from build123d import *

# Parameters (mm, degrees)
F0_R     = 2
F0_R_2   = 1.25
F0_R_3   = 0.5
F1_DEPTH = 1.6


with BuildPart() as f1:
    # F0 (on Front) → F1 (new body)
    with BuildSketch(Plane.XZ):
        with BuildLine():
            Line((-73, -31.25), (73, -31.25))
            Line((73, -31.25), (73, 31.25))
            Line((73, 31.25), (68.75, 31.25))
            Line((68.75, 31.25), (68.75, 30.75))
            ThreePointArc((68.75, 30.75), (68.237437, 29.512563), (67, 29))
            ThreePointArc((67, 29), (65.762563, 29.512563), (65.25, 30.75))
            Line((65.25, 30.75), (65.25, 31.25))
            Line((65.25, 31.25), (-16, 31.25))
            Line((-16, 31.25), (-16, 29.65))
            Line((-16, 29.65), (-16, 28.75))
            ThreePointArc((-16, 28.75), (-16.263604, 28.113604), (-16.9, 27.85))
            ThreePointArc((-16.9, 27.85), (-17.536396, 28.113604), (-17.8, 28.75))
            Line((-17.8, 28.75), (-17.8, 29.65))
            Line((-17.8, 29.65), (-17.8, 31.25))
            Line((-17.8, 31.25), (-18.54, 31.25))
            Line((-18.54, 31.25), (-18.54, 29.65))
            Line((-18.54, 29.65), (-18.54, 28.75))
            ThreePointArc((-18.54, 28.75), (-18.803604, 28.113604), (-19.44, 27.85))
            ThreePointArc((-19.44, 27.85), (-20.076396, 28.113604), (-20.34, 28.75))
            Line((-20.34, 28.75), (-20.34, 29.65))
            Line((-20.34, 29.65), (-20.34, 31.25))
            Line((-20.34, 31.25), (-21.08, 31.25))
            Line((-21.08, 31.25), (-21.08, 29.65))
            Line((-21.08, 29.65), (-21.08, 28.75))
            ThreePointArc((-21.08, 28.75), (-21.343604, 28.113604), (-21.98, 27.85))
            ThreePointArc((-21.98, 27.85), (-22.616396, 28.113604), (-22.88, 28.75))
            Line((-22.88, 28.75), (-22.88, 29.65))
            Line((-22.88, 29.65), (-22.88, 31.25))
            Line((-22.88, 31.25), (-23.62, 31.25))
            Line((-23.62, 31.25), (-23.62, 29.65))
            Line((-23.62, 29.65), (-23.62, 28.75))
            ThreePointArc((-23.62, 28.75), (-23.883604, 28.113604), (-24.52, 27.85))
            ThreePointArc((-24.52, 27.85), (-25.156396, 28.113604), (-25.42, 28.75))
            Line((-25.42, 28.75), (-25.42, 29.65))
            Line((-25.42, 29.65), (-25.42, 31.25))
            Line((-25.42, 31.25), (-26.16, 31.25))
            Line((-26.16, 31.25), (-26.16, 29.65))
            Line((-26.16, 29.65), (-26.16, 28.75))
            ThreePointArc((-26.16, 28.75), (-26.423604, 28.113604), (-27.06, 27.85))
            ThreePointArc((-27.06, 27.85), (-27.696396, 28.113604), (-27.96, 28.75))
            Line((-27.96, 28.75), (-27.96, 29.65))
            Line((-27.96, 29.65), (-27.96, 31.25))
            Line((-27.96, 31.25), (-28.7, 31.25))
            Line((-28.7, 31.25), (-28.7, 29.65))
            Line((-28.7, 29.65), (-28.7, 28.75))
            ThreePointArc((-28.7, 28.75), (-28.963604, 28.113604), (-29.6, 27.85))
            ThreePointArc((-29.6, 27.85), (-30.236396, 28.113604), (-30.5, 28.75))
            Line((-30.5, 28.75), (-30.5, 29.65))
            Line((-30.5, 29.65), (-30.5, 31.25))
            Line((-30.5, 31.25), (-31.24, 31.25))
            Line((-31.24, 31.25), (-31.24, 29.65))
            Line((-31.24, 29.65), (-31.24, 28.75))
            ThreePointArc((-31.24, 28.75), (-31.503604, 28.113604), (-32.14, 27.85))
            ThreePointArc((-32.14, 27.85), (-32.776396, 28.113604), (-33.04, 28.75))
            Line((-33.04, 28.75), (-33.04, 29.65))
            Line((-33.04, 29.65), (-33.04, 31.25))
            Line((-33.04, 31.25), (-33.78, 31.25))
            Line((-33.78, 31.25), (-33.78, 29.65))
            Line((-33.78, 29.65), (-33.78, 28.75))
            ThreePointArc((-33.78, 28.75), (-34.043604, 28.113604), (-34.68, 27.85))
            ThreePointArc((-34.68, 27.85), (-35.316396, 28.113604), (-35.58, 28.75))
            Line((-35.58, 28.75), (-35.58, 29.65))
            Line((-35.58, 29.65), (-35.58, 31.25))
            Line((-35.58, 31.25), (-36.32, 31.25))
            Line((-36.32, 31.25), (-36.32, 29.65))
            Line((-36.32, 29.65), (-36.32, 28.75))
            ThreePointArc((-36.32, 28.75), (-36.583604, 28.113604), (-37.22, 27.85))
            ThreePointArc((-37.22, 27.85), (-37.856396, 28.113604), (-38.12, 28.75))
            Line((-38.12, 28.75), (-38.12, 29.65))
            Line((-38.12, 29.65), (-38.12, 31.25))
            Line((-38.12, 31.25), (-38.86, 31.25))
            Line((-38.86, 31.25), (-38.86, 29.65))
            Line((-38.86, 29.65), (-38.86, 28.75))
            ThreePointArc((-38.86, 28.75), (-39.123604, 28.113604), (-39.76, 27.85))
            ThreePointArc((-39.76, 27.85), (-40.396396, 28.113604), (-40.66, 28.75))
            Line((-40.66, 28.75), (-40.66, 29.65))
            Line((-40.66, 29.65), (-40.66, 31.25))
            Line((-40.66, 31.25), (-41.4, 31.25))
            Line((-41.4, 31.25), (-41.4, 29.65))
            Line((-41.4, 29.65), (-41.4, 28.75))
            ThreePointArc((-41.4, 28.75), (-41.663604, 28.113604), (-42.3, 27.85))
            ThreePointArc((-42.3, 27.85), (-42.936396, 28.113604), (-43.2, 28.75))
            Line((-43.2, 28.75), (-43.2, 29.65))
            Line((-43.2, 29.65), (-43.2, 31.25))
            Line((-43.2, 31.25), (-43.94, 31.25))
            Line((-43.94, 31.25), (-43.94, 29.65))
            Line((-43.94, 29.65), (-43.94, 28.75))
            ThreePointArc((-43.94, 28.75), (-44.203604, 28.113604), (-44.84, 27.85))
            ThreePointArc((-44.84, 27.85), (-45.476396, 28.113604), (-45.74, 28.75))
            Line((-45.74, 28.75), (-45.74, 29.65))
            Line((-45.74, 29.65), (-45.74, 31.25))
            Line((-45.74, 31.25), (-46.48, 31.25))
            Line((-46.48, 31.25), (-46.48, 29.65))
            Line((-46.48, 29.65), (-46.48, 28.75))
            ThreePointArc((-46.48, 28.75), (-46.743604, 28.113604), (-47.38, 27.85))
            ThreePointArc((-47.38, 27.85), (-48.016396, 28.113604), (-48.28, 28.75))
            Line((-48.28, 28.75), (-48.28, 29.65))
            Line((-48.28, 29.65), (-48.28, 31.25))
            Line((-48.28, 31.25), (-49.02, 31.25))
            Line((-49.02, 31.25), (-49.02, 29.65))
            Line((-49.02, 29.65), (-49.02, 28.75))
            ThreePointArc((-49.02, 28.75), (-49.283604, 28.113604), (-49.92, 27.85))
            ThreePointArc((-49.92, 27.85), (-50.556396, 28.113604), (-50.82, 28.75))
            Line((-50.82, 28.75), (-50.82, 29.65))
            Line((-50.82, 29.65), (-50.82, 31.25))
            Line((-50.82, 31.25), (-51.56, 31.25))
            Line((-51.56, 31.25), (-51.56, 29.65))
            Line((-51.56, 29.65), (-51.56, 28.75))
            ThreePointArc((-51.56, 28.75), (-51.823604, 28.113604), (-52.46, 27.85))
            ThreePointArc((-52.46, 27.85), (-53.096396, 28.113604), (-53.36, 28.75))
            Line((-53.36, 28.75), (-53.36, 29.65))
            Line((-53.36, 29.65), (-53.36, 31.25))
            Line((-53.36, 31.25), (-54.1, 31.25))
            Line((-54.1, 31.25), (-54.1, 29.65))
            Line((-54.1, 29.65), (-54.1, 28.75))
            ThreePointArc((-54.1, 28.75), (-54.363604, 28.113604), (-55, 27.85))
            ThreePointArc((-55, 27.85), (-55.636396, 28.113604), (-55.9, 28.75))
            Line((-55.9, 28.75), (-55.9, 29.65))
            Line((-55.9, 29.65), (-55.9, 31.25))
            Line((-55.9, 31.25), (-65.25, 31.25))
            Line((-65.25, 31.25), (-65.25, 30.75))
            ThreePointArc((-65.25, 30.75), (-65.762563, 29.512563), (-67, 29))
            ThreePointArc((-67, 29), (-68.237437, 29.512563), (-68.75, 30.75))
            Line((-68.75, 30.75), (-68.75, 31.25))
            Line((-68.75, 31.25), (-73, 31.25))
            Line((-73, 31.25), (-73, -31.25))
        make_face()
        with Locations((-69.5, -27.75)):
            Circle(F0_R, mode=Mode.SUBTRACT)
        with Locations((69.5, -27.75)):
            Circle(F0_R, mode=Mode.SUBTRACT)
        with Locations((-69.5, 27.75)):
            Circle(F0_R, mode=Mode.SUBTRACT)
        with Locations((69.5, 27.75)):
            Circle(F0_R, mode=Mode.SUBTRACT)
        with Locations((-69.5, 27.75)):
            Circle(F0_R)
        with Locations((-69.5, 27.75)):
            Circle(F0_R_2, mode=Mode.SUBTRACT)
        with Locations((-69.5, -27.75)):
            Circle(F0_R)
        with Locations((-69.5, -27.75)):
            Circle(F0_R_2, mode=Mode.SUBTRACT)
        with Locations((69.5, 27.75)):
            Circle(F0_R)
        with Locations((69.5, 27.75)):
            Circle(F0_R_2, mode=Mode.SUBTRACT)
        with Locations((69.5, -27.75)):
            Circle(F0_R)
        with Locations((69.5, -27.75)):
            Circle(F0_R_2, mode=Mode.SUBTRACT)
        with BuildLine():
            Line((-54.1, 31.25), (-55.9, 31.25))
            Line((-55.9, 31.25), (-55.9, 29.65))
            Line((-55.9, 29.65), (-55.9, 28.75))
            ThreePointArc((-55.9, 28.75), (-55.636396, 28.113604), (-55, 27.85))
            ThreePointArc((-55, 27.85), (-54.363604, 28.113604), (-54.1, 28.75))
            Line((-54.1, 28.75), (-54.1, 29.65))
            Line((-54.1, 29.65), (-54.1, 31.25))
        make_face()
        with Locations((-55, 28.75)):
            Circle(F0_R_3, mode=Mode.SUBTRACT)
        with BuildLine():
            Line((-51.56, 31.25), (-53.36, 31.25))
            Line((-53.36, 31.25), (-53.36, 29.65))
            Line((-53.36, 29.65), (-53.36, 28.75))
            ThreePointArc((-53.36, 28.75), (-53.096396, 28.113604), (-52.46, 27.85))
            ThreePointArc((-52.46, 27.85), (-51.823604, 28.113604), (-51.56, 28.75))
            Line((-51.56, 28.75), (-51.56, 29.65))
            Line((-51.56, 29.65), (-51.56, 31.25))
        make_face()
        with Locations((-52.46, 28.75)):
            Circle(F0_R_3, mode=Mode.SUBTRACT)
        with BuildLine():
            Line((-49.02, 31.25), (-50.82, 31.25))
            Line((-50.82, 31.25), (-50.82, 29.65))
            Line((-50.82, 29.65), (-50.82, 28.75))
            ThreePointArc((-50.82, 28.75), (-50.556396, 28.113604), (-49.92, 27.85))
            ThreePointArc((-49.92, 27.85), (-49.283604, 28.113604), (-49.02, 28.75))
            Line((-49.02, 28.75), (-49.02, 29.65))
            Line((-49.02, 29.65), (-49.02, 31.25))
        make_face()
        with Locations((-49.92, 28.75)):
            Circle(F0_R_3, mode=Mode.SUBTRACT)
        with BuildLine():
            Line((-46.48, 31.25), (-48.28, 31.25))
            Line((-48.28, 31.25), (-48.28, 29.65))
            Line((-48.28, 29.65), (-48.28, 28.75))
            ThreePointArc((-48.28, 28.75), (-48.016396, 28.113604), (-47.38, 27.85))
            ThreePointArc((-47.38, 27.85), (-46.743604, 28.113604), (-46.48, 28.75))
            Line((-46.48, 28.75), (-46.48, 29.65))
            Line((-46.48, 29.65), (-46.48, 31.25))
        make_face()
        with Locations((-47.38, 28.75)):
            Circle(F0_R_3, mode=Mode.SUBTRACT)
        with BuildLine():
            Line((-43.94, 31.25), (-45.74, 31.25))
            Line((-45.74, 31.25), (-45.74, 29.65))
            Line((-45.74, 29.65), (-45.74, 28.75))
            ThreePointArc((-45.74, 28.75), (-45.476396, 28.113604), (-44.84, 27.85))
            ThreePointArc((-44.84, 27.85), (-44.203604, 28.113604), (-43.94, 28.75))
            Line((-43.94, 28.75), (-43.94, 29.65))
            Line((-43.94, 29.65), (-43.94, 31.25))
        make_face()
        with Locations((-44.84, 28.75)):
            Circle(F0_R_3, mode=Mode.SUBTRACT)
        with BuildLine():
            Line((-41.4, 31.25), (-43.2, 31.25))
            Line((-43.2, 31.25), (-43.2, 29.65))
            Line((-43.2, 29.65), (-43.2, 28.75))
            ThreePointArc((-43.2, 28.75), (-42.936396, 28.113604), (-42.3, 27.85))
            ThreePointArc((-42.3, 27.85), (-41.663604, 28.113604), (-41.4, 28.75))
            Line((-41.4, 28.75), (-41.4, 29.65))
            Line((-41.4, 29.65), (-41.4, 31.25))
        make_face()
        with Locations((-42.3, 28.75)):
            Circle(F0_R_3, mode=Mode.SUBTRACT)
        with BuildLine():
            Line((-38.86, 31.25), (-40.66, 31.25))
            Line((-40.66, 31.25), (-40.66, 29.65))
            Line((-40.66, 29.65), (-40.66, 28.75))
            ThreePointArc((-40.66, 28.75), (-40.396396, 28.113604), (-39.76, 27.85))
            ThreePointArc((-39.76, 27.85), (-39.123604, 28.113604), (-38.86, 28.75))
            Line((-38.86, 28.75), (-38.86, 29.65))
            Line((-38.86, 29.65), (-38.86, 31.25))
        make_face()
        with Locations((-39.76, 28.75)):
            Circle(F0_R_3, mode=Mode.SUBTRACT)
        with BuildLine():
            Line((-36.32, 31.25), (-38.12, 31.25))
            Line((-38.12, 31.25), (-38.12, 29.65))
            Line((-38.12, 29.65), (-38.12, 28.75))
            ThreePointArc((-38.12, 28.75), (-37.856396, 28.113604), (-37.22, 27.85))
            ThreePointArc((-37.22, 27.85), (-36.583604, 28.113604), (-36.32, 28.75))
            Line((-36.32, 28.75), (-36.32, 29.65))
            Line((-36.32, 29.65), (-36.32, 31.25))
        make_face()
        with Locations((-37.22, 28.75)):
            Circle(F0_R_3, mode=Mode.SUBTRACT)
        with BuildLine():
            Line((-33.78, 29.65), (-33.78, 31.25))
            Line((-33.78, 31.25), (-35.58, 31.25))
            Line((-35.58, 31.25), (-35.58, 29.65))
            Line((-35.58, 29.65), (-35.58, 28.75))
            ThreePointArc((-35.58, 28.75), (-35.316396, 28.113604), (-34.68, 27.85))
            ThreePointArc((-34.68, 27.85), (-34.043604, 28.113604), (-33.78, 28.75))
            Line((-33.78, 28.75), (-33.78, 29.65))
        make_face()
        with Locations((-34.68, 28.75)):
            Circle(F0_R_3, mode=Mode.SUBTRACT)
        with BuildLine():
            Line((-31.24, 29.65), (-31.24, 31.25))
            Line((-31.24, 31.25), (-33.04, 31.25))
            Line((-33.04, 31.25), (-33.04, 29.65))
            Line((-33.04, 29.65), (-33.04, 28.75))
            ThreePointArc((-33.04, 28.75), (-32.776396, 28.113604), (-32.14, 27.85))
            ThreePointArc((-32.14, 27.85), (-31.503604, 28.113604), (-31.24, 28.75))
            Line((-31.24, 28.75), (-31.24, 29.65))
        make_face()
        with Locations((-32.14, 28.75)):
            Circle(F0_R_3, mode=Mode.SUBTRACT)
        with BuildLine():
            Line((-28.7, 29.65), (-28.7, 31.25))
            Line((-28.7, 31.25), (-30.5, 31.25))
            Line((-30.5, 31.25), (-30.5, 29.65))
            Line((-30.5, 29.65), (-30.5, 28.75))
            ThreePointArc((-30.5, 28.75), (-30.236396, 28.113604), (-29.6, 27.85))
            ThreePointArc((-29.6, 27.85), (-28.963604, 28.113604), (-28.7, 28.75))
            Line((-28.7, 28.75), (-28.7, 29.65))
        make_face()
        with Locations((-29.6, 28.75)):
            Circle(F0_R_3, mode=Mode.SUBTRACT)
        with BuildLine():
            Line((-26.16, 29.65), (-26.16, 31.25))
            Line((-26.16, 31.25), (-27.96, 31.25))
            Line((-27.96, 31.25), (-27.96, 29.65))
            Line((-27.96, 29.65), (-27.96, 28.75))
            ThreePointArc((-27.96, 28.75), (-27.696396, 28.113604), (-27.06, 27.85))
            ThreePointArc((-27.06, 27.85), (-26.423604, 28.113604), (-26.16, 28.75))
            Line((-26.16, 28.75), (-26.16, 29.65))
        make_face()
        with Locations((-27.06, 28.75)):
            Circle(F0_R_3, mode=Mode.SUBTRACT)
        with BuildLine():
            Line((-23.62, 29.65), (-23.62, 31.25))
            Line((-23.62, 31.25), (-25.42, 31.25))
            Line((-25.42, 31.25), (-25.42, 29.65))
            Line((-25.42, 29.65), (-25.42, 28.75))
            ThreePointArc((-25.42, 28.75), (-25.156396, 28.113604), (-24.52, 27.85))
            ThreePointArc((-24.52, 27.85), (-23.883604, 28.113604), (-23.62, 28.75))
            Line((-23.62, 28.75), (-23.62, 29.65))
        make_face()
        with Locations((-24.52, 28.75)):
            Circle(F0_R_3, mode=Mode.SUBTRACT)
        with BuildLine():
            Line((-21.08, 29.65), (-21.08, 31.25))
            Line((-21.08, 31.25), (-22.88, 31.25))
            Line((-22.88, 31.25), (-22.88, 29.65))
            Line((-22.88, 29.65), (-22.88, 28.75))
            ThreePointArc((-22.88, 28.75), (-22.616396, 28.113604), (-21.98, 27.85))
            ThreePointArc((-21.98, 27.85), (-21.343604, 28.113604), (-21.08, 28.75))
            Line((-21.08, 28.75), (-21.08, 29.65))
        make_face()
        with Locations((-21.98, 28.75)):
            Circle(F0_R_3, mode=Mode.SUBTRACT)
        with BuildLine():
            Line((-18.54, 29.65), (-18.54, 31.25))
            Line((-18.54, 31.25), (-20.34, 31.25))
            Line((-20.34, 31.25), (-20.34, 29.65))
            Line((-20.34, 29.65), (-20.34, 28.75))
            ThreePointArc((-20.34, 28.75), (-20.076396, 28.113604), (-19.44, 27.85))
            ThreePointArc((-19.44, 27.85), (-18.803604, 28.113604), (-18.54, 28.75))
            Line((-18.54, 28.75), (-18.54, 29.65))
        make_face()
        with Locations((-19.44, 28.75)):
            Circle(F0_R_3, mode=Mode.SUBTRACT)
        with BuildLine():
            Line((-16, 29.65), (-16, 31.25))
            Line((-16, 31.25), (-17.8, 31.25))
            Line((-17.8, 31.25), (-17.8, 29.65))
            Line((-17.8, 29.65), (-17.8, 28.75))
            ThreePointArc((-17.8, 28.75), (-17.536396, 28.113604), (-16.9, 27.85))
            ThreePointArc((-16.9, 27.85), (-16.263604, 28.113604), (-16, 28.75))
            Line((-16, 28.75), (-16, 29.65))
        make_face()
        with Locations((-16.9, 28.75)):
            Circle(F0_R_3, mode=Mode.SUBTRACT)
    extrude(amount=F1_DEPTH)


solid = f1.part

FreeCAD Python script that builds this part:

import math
import FreeCAD as App
import Part
import Sketcher
Q = App.Units.Quantity

doc = App.newDocument("Part")
body = doc.addObject("PartDesign::Body", "Body")

sketch1 = body.newObject("Sketcher::SketchObject", "Sketch")
sketch1.AttachmentSupport = (doc.getObject("XZ_Plane"), [""])
sketch1.MapMode = "FlatFace"
sketch1.addGeometry([
    Part.LineSegment(App.Vector(-73, -31.2, 0), App.Vector(73, -31.2, 0)),
    Part.LineSegment(App.Vector(73, -31.2, 0), App.Vector(73, 31.2, 0)),
    Part.LineSegment(App.Vector(73, 31.2, 0), App.Vector(68.8, 31.2, 0)),
    Part.LineSegment(App.Vector(68.8, 31.2, 0), App.Vector(68.8, 30.8, 0)),
    Part.ArcOfCircle(Part.Circle(App.Vector(67, 30.7, 0), App.Vector(0, 0, 1), 1.7), math.radians(-90), math.radians(0)),
    Part.ArcOfCircle(Part.Circle(App.Vector(67, 30.7, 0), App.Vector(0, 0, 1), 1.7), math.radians(180), math.radians(270)),
    Part.LineSegment(App.Vector(65.2, 30.8, 0), App.Vector(65.2, 31.2, 0)),
    Part.LineSegment(App.Vector(65.2, 31.2, 0), App.Vector(-65.2, 31.2, 0)),
    Part.LineSegment(App.Vector(-65.2, 31.2, 0), App.Vector(-65.2, 30.8, 0)),
    Part.ArcOfCircle(Part.Circle(App.Vector(-67, 30.7, 0), App.Vector(0, 0, 1), 1.7), math.radians(-90), math.radians(0)),
    Part.ArcOfCircle(Part.Circle(App.Vector(-67, 30.7, 0), App.Vector(0, 0, 1), 1.7), math.radians(180), math.radians(270)),
    Part.LineSegment(App.Vector(-68.8, 30.8, 0), App.Vector(-68.8, 31.2, 0)),
    Part.LineSegment(App.Vector(-68.8, 31.2, 0), App.Vector(-73, 31.2, 0)),
    Part.LineSegment(App.Vector(-73, 31.2, 0), App.Vector(-73, -31.2, 0)),
    Part.Circle(App.Vector(-69.5, -27.8, 0), App.Vector(0, 0, 1), 1.2),
    Part.Circle(App.Vector(69.5, -27.8, 0), App.Vector(0, 0, 1), 1.2),
    Part.Circle(App.Vector(-69.5, 27.8, 0), App.Vector(0, 0, 1), 1.2),
    Part.Circle(App.Vector(-55, 28.8, 0), App.Vector(0, 0, 1), 0.5),
    Part.Circle(App.Vector(-52.5, 28.8, 0), App.Vector(0, 0, 1), 0.5),
    Part.Circle(App.Vector(-49.9, 28.8, 0), App.Vector(0, 0, 1), 0.5),
    Part.Circle(App.Vector(-47.4, 28.8, 0), App.Vector(0, 0, 1), 0.5),
    Part.Circle(App.Vector(-44.8, 28.8, 0), App.Vector(0, 0, 1), 0.5),
    Part.Circle(App.Vector(-42.3, 28.8, 0), App.Vector(0, 0, 1), 0.5),
    Part.Circle(App.Vector(-39.8, 28.8, 0), App.Vector(0, 0, 1), 0.5),
    Part.Circle(App.Vector(-37.2, 28.8, 0), App.Vector(0, 0, 1), 0.5),
    Part.Circle(App.Vector(-34.7, 28.8, 0), App.Vector(0, 0, 1), 0.5),
    Part.Circle(App.Vector(-32.1, 28.8, 0), App.Vector(0, 0, 1), 0.5),
    Part.Circle(App.Vector(-29.6, 28.8, 0), App.Vector(0, 0, 1), 0.5),
    Part.Circle(App.Vector(-27.1, 28.8, 0), App.Vector(0, 0, 1), 0.5),
    Part.Circle(App.Vector(-24.5, 28.8, 0), App.Vector(0, 0, 1), 0.5),
    Part.Circle(App.Vector(-22, 28.8, 0), App.Vector(0, 0, 1), 0.5),
    Part.Circle(App.Vector(-19.4, 28.8, 0), App.Vector(0, 0, 1), 0.5),
    Part.Circle(App.Vector(-16.9, 28.8, 0), App.Vector(0, 0, 1), 0.5),
    Part.Circle(App.Vector(69.5, 27.8, 0), App.Vector(0, 0, 1), 1.2),
], False)
sketch1.addConstraint([
    Sketcher.Constraint("Coincident", 0, 2, 1, 1),
    Sketcher.Constraint("Coincident", 1, 2, 2, 1),
    Sketcher.Constraint("Coincident", 2, 2, 3, 1),
    Sketcher.Constraint("Tangent", 3, 2, 4, 2),
    Sketcher.Constraint("Tangent", 4, 1, 5, 2),
    Sketcher.Constraint("Tangent", 5, 1, 6, 1),
    Sketcher.Constraint("Coincident", 6, 2, 7, 1),
    Sketcher.Constraint("Coincident", 7, 2, 8, 1),
    Sketcher.Constraint("Tangent", 8, 2, 9, 2),
    Sketcher.Constraint("Tangent", 9, 1, 10, 2),
    Sketcher.Constraint("Tangent", 10, 1, 11, 1),
    Sketcher.Constraint("Coincident", 11, 2, 12, 1),
    Sketcher.Constraint("Coincident", 12, 2, 13, 1),
    Sketcher.Constraint("Coincident", 13, 2, 0, 1),
    Sketcher.Constraint("Horizontal", 0),
    Sketcher.Constraint("Vertical", 1),
    Sketcher.Constraint("Horizontal", 2),
    Sketcher.Constraint("Vertical", 3),
    Sketcher.Constraint("Vertical", 6),
    Sketcher.Constraint("Horizontal", 7),
    Sketcher.Constraint("Vertical", 8),
    Sketcher.Constraint("Vertical", 11),
    Sketcher.Constraint("Horizontal", 12),
    Sketcher.Constraint("Vertical", 13),
    Sketcher.Constraint("Equal", 4, 5),
    Sketcher.Constraint("Equal", 5, 9),
    Sketcher.Constraint("Equal", 9, 10),
    Sketcher.Constraint("Equal", 14, 15),
    Sketcher.Constraint("Equal", 15, 16),
    Sketcher.Constraint("Equal", 17, 18),
    Sketcher.Constraint("Equal", 18, 19),
    Sketcher.Constraint("Equal", 19, 20),
    Sketcher.Constraint("Equal", 20, 21),
    Sketcher.Constraint("Equal", 21, 22),
    Sketcher.Constraint("Equal", 22, 23),
    Sketcher.Constraint("Equal", 23, 24),
    Sketcher.Constraint("Equal", 24, 25),
    Sketcher.Constraint("Equal", 25, 26),
    Sketcher.Constraint("Equal", 26, 27),
    Sketcher.Constraint("Equal", 27, 28),
    Sketcher.Constraint("Equal", 28, 29),
    Sketcher.Constraint("Equal", 29, 30),
    Sketcher.Constraint("Equal", 30, 31),
    Sketcher.Constraint("Equal", 31, 32),
    Sketcher.Constraint("Equal", 16, 33),
    Sketcher.Constraint("Symmetric", 15, 3, 16, 3, -1, 1),
    Sketcher.Constraint("Symmetric", 14, 3, 33, 3, -1, 1),
    Sketcher.Constraint("Symmetric", 0, 2, 12, 2, -1, 1),
    Sketcher.Constraint("Symmetric", 4, 3, 9, 3, -2),
    Sketcher.Constraint("Symmetric", 14, 3, 15, 3, -2),
    Sketcher.Constraint("Horizontal", 17, 3, 18, 3),
    Sketcher.Constraint("Horizontal", 18, 3, 19, 3),
    Sketcher.Constraint("Horizontal", 19, 3, 20, 3),
    Sketcher.Constraint("Horizontal", 20, 3, 21, 3),
    Sketcher.Constraint("Horizontal", 21, 3, 22, 3),
    Sketcher.Constraint("Horizontal", 22, 3, 23, 3),
    Sketcher.Constraint("Horizontal", 23, 3, 24, 3),
    Sketcher.Constraint("Horizontal", 24, 3, 25, 3),
    Sketcher.Constraint("Horizontal", 25, 3, 26, 3),
    Sketcher.Constraint("Horizontal", 26, 3, 27, 3),
    Sketcher.Constraint("Horizontal", 27, 3, 28, 3),
    Sketcher.Constraint("Horizontal", 28, 3, 29, 3),
    Sketcher.Constraint("Horizontal", 29, 3, 30, 3),
    Sketcher.Constraint("Horizontal", 30, 3, 31, 3),
    Sketcher.Constraint("Horizontal", 31, 3, 32, 3),
    Sketcher.Constraint("Horizontal", 2, 2, 6, 2),
    Sketcher.Constraint("Horizontal", 7, 2, 11, 2),
    Sketcher.Constraint("Vertical", 5, 3, 4, 1),
    Sketcher.Constraint("Vertical", 10, 3, 9, 1),
    Sketcher.Constraint("Diameter", 17, Q("1 mm")),
    Sketcher.Constraint("Diameter", 14, Q("2.5 mm")),
    Sketcher.Constraint("DistanceX", 0, 1, 0, 2, Q("146 mm")),
    Sketcher.Constraint("Radius", 4, Q("1.75 mm")),
    Sketcher.Constraint("DistanceX", 7, 2, 7, 1, Q("130.5 mm")),
    Sketcher.Constraint("DistanceY", 1, 1, 1, 2, Q("62.5 mm")),
    Sketcher.Constraint("DistanceY", 3, 2, 3, 1, Q("0.5 mm")),
    Sketcher.Constraint("DistanceX", 17, 3, -1, 1, Q("55 mm")),
    Sketcher.Constraint("DistanceX", 14, 3, 15, 3, Q("139 mm")),
    Sketcher.Constraint("DistanceY", 16, 3, 10, 3, Q("3 mm")),
    Sketcher.Constraint("DistanceY", 17, 3, 9, 3, Q("2 mm")),
    Sketcher.Constraint("DistanceX", 22, 3, -1, 1, Q("42.3 mm")),
    Sketcher.Constraint("DistanceX", 27, 3, -1, 1, Q("29.6 mm")),
    Sketcher.Constraint("DistanceX", 32, 3, -1, 1, Q("16.9 mm")),
    Sketcher.Constraint("DistanceX", 18, 3, 23, 3, Q("12.7 mm")),
    Sketcher.Constraint("DistanceX", 19, 3, 24, 3, Q("12.7 mm")),
    Sketcher.Constraint("DistanceX", 20, 3, 25, 3, Q("12.7 mm")),
    Sketcher.Constraint("DistanceX", 21, 3, 26, 3, Q("12.7 mm")),
    Sketcher.Constraint("DistanceX", 23, 3, 28, 3, Q("12.7 mm")),
    Sketcher.Constraint("DistanceX", 24, 3, 29, 3, Q("12.7 mm")),
    Sketcher.Constraint("DistanceX", 25, 3, 30, 3, Q("12.7 mm")),
    Sketcher.Constraint("DistanceX", 26, 3, 31, 3, Q("12.7 mm")),
    Sketcher.Constraint("DistanceX", 18, 3, -1, 1, Q("52.46 mm")),
    Sketcher.Constraint("DistanceX", 19, 3, -1, 1, Q("49.92 mm")),
    Sketcher.Constraint("DistanceX", 20, 3, -1, 1, Q("47.38 mm")),
    Sketcher.Constraint("DistanceX", 21, 3, -1, 1, Q("44.84 mm")),
])
pad1 = body.newObject("PartDesign::Pad", "Pad")
pad1.Profile = sketch1
pad1.Length = 1.6

doc.recompute()
